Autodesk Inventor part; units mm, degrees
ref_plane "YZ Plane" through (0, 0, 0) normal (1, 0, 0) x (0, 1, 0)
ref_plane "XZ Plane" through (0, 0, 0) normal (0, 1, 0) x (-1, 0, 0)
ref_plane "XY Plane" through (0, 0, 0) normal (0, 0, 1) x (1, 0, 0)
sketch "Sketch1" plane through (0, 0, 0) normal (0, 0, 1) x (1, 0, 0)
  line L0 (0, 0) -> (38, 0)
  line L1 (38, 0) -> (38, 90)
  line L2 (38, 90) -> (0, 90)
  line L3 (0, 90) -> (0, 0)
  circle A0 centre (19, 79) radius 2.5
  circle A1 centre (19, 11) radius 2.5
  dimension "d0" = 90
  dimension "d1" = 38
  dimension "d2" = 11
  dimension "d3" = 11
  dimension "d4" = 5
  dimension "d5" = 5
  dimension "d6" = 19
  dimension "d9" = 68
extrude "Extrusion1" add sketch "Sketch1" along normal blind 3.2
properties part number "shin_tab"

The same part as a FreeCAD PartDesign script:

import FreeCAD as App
import Part
import Sketcher

V = App.Vector


def add_polygon(sketch, points):
    """Adds a closed chain of lines whose ends are joined by coincident constraints."""
    first, n = sketch.GeometryCount, len(points)
    for a, b in zip(points, points[1:] + points[:1]):
        sketch.addGeometry(Part.LineSegment(App.Vector(*a, 0), App.Vector(*b, 0)), False)
    for i in range(n):
        sketch.addConstraint(Sketcher.Constraint("Coincident", first + i, 2, first + (i + 1) % n, 1))

doc = App.newDocument("Part")
params = doc.addObject("Spreadsheet::Sheet", "Params")
for row, (alias, value) in enumerate([
    ("sketch1_diameter", "5 mm"),
    ("sketch1_width", "38 mm"),
    ("sketch1_height", "90 mm"),
    ("pad1_length", "3.2 mm"),
], start=1):
    params.set(f"A{row}", alias)
    params.set(f"B{row}", "=" + value)
    params.setAlias(f"B{row}", alias)

body = doc.addObject("PartDesign::Body", "Body")

# Sketch on XY plane
sketch1 = body.newObject("Sketcher::SketchObject", "Sketch")
sketch1.AttachmentSupport = (doc.getObject("XY_Plane"), [""])
sketch1.MapMode = "FlatFace"
add_polygon(sketch1, [(0, 90), (0, 0), (38, 0), (38, 90)])  # lines 0-3
sketch1.addGeometry(Part.Circle(V(19, 11, 0), V(0, 0, 1), 2.5), False)  # 4
sketch1.addGeometry(Part.Circle(V(19, 79, 0), V(0, 0, 1), 2.5), False)  # 5
sketch1.addConstraint([
    Sketcher.Constraint("Vertical", 0),
    Sketcher.Constraint("Horizontal", 1),
    Sketcher.Constraint("Vertical", 2),
    Sketcher.Constraint("Horizontal", 3),
    Sketcher.Constraint("Coincident", 0, 2, -1, 1),
    Sketcher.Constraint("Equal", 4, 5),
    Sketcher.Constraint("Vertical", 4, 3, 5, 3),
    Sketcher.Constraint("Diameter", 4, 5.0),
    Sketcher.Constraint("DistanceX", 1, 1, 1, 2, 38.0),
    Sketcher.Constraint("DistanceY", 0, 2, 0, 1, 90.0),
    Sketcher.Constraint("DistanceX", -1, 1, 4, 3, 19.0),
    Sketcher.Constraint("DistanceY", -1, 1, 4, 3, 11.0),
    Sketcher.Constraint("DistanceY", 4, 3, 5, 3, 68.0),
])
sketch1.setExpression("Constraints[11]", "Params.sketch1_diameter")
sketch1.setExpression("Constraints[12]", "Params.sketch1_width")
sketch1.setExpression("Constraints[13]", "Params.sketch1_height")
pad1 = body.newObject("PartDesign::Pad", "Pad")
pad1.Profile = sketch1
pad1.setExpression("Length", "Params.pad1_length")

doc.recompute()
